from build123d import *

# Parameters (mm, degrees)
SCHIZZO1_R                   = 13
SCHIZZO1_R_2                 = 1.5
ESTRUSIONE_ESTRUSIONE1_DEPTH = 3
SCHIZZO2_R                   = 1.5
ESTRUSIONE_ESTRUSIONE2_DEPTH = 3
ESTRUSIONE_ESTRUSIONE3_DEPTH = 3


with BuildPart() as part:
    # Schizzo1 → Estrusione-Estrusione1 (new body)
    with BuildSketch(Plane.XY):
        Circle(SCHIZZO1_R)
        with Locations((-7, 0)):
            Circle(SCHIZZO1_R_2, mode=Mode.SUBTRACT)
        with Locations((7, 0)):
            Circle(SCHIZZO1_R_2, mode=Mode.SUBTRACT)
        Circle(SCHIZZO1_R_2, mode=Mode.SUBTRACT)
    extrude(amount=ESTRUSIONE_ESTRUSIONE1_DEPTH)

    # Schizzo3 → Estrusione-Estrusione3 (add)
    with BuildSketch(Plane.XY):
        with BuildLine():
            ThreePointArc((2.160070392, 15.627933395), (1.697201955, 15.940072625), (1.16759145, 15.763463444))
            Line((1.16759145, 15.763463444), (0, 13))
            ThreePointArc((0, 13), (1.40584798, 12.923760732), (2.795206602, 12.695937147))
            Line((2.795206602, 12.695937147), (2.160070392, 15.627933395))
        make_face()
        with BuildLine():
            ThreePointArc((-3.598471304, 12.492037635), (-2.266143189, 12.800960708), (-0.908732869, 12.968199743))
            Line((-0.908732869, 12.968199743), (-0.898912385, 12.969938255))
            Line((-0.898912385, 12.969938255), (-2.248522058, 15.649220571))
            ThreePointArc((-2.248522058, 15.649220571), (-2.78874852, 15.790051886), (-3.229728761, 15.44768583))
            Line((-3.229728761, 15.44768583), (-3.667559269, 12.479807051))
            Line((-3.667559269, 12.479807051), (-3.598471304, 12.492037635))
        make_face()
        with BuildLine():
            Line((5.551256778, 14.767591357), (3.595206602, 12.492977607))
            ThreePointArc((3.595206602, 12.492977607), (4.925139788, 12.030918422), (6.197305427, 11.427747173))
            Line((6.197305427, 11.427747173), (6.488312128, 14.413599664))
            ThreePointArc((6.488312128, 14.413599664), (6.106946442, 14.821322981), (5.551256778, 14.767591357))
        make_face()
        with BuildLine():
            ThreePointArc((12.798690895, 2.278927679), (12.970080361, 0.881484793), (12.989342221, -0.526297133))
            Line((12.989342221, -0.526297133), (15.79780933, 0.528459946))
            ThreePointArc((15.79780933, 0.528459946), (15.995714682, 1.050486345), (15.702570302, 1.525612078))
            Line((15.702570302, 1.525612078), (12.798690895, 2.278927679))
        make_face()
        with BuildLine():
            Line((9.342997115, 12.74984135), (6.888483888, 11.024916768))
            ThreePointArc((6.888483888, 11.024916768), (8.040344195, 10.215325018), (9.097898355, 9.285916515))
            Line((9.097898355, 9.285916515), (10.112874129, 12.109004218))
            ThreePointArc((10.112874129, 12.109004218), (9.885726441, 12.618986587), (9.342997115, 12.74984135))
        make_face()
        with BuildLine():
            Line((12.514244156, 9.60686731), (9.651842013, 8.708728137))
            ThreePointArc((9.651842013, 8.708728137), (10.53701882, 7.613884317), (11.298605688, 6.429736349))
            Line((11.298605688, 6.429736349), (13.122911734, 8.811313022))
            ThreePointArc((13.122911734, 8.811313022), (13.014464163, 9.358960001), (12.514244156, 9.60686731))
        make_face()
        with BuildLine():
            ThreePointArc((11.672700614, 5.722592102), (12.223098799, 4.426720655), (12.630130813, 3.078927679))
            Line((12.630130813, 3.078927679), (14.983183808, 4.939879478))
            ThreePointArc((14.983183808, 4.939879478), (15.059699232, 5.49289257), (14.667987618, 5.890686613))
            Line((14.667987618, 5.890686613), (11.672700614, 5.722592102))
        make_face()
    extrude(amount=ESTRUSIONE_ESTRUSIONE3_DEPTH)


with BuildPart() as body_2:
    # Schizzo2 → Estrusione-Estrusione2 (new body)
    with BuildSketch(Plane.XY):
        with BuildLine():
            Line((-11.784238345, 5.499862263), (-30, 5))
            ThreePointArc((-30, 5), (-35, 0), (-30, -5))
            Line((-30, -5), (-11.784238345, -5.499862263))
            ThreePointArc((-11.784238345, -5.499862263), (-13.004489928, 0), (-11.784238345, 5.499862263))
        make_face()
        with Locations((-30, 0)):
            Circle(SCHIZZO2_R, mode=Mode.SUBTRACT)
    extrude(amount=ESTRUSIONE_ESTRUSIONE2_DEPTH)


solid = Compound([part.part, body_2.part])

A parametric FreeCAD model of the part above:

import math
import FreeCAD as App
import Part
import Sketcher

doc = App.newDocument("Part")
body = doc.addObject("PartDesign::Body", "Body")

sketch1 = doc.addObject("Sketcher::SketchObject", "Sketch")
body.addObject(sketch1)
sketch1.AttachmentSupport = (doc.XY_Plane, [""])
sketch1.MapMode = "FlatFace"
sketch1.addGeometry(Part.Circle(App.Vector(0, 0, 0), App.Vector(0, 0, 1), 13), False)
sketch1.addGeometry(Part.Circle(App.Vector(-7, 0, 0), App.Vector(0, 0, 1), 1.5), False)
sketch1.addGeometry(Part.Circle(App.Vector(0, 0, 0), App.Vector(0, 0, 1), 1.5), False)
sketch1.addGeometry(Part.Circle(App.Vector(7, 0, 0), App.Vector(0, 0, 1), 1.5), False)
sketch1.addConstraint(Sketcher.Constraint("Coincident", 0, 3, -1, 1))
sketch1.addConstraint(Sketcher.Constraint("Coincident", 2, 3, -1, 1))
sketch1.addConstraint(Sketcher.Constraint("Equal", 1, 2))
sketch1.addConstraint(Sketcher.Constraint("Equal", 2, 3))
sketch1.addConstraint(Sketcher.Constraint("Symmetric", 1, 3, 3, 3, -1, 1))
sketch1.addConstraint(Sketcher.Constraint("PointOnObject", 1, 3, -1))
sketch1.addConstraint(Sketcher.Constraint("Diameter", 0, 26.0))
sketch1.addConstraint(Sketcher.Constraint("Diameter", 1, 3.0))
sketch1.addConstraint(Sketcher.Constraint("DistanceX", 1, 3, -1, 1, 7.0))
pad1 = doc.addObject("PartDesign::Pad", "Pad")
body.addObject(pad1)
pad1.Profile = sketch1
pad1.Length = 3

sketch2 = doc.addObject("Sketcher::SketchObject", "Sketch001")
body.addObject(sketch2)
sketch2.AttachmentSupport = (doc.XY_Plane, [""])
sketch2.MapMode = "FlatFace"
sketch2.addGeometry(Part.ArcOfCircle(Part.Circle(App.Vector(1.612, 15.314, 0), App.Vector(0, 0, 1), 0.632), math.radians(30), math.radians(135)), False)
sketch2.addGeometry(Part.LineSegment(App.Vector(1.168, 15.763, 0), App.Vector(0, 13, 0)), False)
sketch2.addGeometry(Part.ArcOfCircle(Part.Circle(App.Vector(0, 0, 0), App.Vector(0, 0, 1), 13), math.radians(77.58), math.radians(90)), False)
sketch2.addGeometry(Part.LineSegment(App.Vector(2.795, 12.696, 0), App.Vector(2.16, 15.628, 0)), False)
sketch2.addGeometry(Part.ArcOfCircle(Part.Circle(App.Vector(0, 0, 0), App.Vector(0, 0, 1), 13), math.radians(94.01), math.radians(106.07)), False)
sketch2.addGeometry(Part.LineSegment(App.Vector(-0.909, 12.968, 0), App.Vector(-0.899, 12.97, 0)), False)
sketch2.addGeometry(Part.LineSegment(App.Vector(-0.899, 12.97, 0), App.Vector(-2.249, 15.649, 0)), False)
sketch2.addGeometry(Part.ArcOfCircle(Part.Circle(App.Vector(-2.662, 15.171, 0), App.Vector(0, 0, 1), 0.632), math.radians(49), math.radians(154)), False)
sketch2.addGeometry(Part.LineSegment(App.Vector(-3.23, 15.448, 0), App.Vector(-3.668, 12.48, 0)), False)
sketch2.addGeometry(Part.LineSegment(App.Vector(-3.668, 12.48, 0), App.Vector(-3.598, 12.492, 0)), False)
sketch2.addGeometry(Part.LineSegment(App.Vector(5.551, 14.768, 0), App.Vector(3.595, 12.493, 0)), False)
sketch2.addGeometry(Part.ArcOfCircle(Part.Circle(App.Vector(0, 0, 0), App.Vector(0, 0, 1), 13), math.radians(61.53), math.radians(73.95)), False)
sketch2.addGeometry(Part.LineSegment(App.Vector(6.197, 11.428, 0), App.Vector(6.488, 14.414, 0)), False)
sketch2.addGeometry(Part.ArcOfCircle(Part.Circle(App.Vector(5.884, 14.23, 0), App.Vector(0, 0, 1), 0.632), math.radians(17), math.radians(122)), False)
sketch2.addGeometry(Part.ArcOfCircle(Part.Circle(App.Vector(0, 0, 0), App.Vector(0, 0, 1), 13), math.radians(-2.32), math.radians(10.1)), False)
sketch2.addGeometry(Part.LineSegment(App.Vector(12.989, -0.526, 0), App.Vector(15.798, 0.528, 0)), False)
sketch2.addGeometry(Part.ArcOfCircle(Part.Circle(App.Vector(15.367, 0.99, 0), App.Vector(0, 0, 1), 0.632), math.radians(-47), math.radians(58)), False)
sketch2.addGeometry(Part.LineSegment(App.Vector(15.703, 1.526, 0), App.Vector(12.799, 2.279, 0)), False)
sketch2.addGeometry(Part.LineSegment(App.Vector(9.343, 12.75, 0), App.Vector(6.888, 11.025, 0)), False)
sketch2.addGeometry(Part.ArcOfCircle(Part.Circle(App.Vector(0, 0, 0), App.Vector(0, 0, 1), 13), math.radians(45.59), math.radians(58)), False)
sketch2.addGeometry(Part.LineSegment(App.Vector(9.098, 9.286, 0), App.Vector(10.113, 12.109, 0)), False)
sketch2.addGeometry(Part.ArcOfCircle(Part.Circle(App.Vector(9.482, 12.133, 0), App.Vector(0, 0, 1), 0.632), math.radians(-2), math.radians(103)), False)
sketch2.addGeometry(Part.LineSegment(App.Vector(12.514, 9.607, 0), App.Vector(9.652, 8.709, 0)), False)
sketch2.addGeometry(Part.ArcOfCircle(Part.Circle(App.Vector(0, 0, 0), App.Vector(0, 0, 1), 13), math.radians(29.64), math.radians(42.06)), False)
sketch2.addGeometry(Part.LineSegment(App.Vector(11.299, 6.43, 0), App.Vector(13.123, 8.811, 0)), False)
sketch2.addGeometry(Part.ArcOfCircle(Part.Circle(App.Vector(12.513, 8.975, 0), App.Vector(0, 0, 1), 0.632), math.radians(-15), math.radians(90)), False)
sketch2.addGeometry(Part.ArcOfCircle(Part.Circle(App.Vector(0, 0, 0), App.Vector(0, 0, 1), 13), math.radians(13.7), math.radians(26.12)), False)
sketch2.addGeometry(Part.LineSegment(App.Vector(12.63, 3.079, 0), App.Vector(14.983, 4.94, 0)), False)
sketch2.addGeometry(Part.ArcOfCircle(Part.Circle(App.Vector(14.46, 5.294, 0), App.Vector(0, 0, 1), 0.632), math.radians(-34), math.radians(71)), False)
sketch2.addGeometry(Part.LineSegment(App.Vector(14.668, 5.891, 0), App.Vector(11.673, 5.723, 0)), False)
sketch2.addConstraint(Sketcher.Constraint("Coincident", 0, 2, 1, 1))
sketch2.addConstraint(Sketcher.Constraint("Coincident", 1, 2, 2, 2))
sketch2.addConstraint(Sketcher.Constraint("Coincident", 2, 1, 3, 1))
sketch2.addConstraint(Sketcher.Constraint("Coincident", 3, 2, 0, 1))
sketch2.addConstraint(Sketcher.Constraint("Coincident", 4, 1, 5, 1))
sketch2.addConstraint(Sketcher.Constraint("Coincident", 5, 2, 6, 1))
sketch2.addConstraint(Sketcher.Constraint("Coincident", 6, 2, 7, 1))
sketch2.addConstraint(Sketcher.Constraint("Coincident", 7, 2, 8, 1))
sketch2.addConstraint(Sketcher.Constraint("Coincident", 8, 2, 9, 1))
sketch2.addConstraint(Sketcher.Constraint("Coincident", 9, 2, 4, 2))
sketch2.addConstraint(Sketcher.Constraint("Coincident", 10, 2, 11, 2))
sketch2.addConstraint(Sketcher.Constraint("Coincident", 11, 1, 12, 1))
sketch2.addConstraint(Sketcher.Constraint("Coincident", 12, 2, 13, 1))
sketch2.addConstraint(Sketcher.Constraint("Coincident", 13, 2, 10, 1))
sketch2.addConstraint(Sketcher.Constraint("Coincident", 14, 1, 15, 1))
sketch2.addConstraint(Sketcher.Constraint("Coincident", 15, 2, 16, 1))
sketch2.addConstraint(Sketcher.Constraint("Coincident", 16, 2, 17, 1))
sketch2.addConstraint(Sketcher.Constraint("Coincident", 17, 2, 14, 2))
sketch2.addConstraint(Sketcher.Constraint("Coincident", 18, 2, 19, 2))
sketch2.addConstraint(Sketcher.Constraint("Coincident", 19, 1, 20, 1))
sketch2.addConstraint(Sketcher.Constraint("Coincident", 20, 2, 21, 1))
sketch2.addConstraint(Sketcher.Constraint("Coincident", 21, 2, 18, 1))
sketch2.addConstraint(Sketcher.Constraint("Coincident", 22, 2, 23, 2))
sketch2.addConstraint(Sketcher.Constraint("Coincident", 23, 1, 24, 1))
sketch2.addConstraint(Sketcher.Constraint("Coincident", 24, 2, 25, 1))
sketch2.addConstraint(Sketcher.Constraint("Coincident", 25, 2, 22, 1))
sketch2.addConstraint(Sketcher.Constraint("Coincident", 26, 1, 27, 1))
sketch2.addConstraint(Sketcher.Constraint("Coincident", 27, 2, 28, 1))
sketch2.addConstraint(Sketcher.Constraint("Coincident", 28, 2, 29, 1))
sketch2.addConstraint(Sketcher.Constraint("Coincident", 29, 2, 26, 2))
sketch2.addConstraint(Sketcher.Constraint("Coincident", 2, 3, -1, 1))
sketch2.addConstraint(Sketcher.Constraint("Coincident", 4, 3, -1, 1))
sketch2.addConstraint(Sketcher.Constraint("Coincident", 11, 3, -1, 1))
sketch2.addConstraint(Sketcher.Constraint("Coincident", 14, 3, -1, 1))
sketch2.addConstraint(Sketcher.Constraint("Coincident", 19, 3, -1, 1))
sketch2.addConstraint(Sketcher.Constraint("Coincident", 23, 3, -1, 1))
sketch2.addConstraint(Sketcher.Constraint("Coincident", 26, 3, -1, 1))
sketch2.addConstraint(Sketcher.Constraint("Equal", 2, 4))
sketch2.addConstraint(Sketcher.Constraint("Equal", 0, 7))
sketch2.addConstraint(Sketcher.Constraint("Equal", 4, 11))
sketch2.addConstraint(Sketcher.Constraint("Equal", 7, 13))
sketch2.addConstraint(Sketcher.Constraint("Equal", 11, 14))
sketch2.addConstraint(Sketcher.Constraint("Equal", 13, 16))
sketch2.addConstraint(Sketcher.Constraint("Equal", 14, 19))
sketch2.addConstraint(Sketcher.Constraint("Equal", 16, 21))
sketch2.addConstraint(Sketcher.Constraint("Equal", 19, 23))
sketch2.addConstraint(Sketcher.Constraint("Equal", 21, 25))
sketch2.addConstraint(Sketcher.Constraint("Equal", 23, 26))
sketch2.addConstraint(Sketcher.Constraint("Equal", 25, 28))
sketch2.addConstraint(Sketcher.Constraint("PointOnObject", 1, 2, -2))
sketch2.addConstraint(Sketcher.Constraint("Parallel", 5, 9))
sketch2.addConstraint(Sketcher.Constraint("Equal", 1, 3))
sketch2.addConstraint(Sketcher.Constraint("Equal", 3, 6))
sketch2.addConstraint(Sketcher.Constraint("Equal", 6, 8))
sketch2.addConstraint(Sketcher.Constraint("Equal", 8, 10))
sketch2.addConstraint(Sketcher.Constraint("Equal", 10, 12))
sketch2.addConstraint(Sketcher.Constraint("Equal", 12, 15))
sketch2.addConstraint(Sketcher.Constraint("Equal", 15, 17))
sketch2.addConstraint(Sketcher.Constraint("Equal", 17, 18))
sketch2.addConstraint(Sketcher.Constraint("Equal", 18, 20))
sketch2.addConstraint(Sketcher.Constraint("Equal", 20, 22))
sketch2.addConstraint(Sketcher.Constraint("Equal", 22, 24))
sketch2.addConstraint(Sketcher.Constraint("Equal", 24, 27))
sketch2.addConstraint(Sketcher.Constraint("Equal", 27, 29))
sketch2.addConstraint(Sketcher.Constraint("Radius", 2, 13.0))
sketch2.addConstraint(Sketcher.Constraint("Distance", 1, 3.0))
sketch2.addConstraint(Sketcher.Constraint("DistanceX", 2, 1, 10, 2, 0.8))
sketch2.addConstraint(Sketcher.Constraint("DistanceY", 17, 2, 26, 1, 0.8))
sketch2.addConstraint(Sketcher.Constraint("Radius", 0, 0.631843))
sketch2.addConstraint(Sketcher.Constraint("DistanceY", 19, 1, 18, 2, 1.739))
sketch2.addConstraint(Sketcher.Constraint("DistanceX", -1, 1, 21, 3, 9.481501))
sketch2.addConstraint(Sketcher.Constraint("DistanceY", -1, 1, 4, 1, 12.9682))
sketch2.addConstraint(Sketcher.Constraint("DistanceY", -1, 1, 12, 2, 14.4136))
sketch2.addConstraint(Sketcher.Constraint("DistanceX", -1, 1, 19, 1, 9.097898))
sketch2.addConstraint(Sketcher.Constraint("DistanceX", -1, 1, 29, 2, 11.672701))
sketch2.addConstraint(Sketcher.Constraint("DistanceY", 5, 2, 0, 3, 2.344102))
sketch2.addConstraint(Sketcher.Constraint("DistanceY", 9, 2, 5, 2, 0.477901))
sketch2.addConstraint(Sketcher.Constraint("DistanceX", 10, 2, 11, 1, 2.602099))
sketch2.addConstraint(Sketcher.Constraint("DistanceX", 13, 2, 13, 3, 0.3324))
sketch2.addConstraint(Sketcher.Constraint("DistanceY", 16, 3, 16, 2, 0.5352))
sketch2.addConstraint(Sketcher.Constraint("DistanceY", 22, 2, 25, 3, 0.266299))
sketch2.addConstraint(Sketcher.Constraint("DistanceY", -1, 1, 0, 3, 15.31404))
sketch2.addConstraint(Sketcher.Constraint("DistanceY", -1, 1, 7, 3, 15.17113))
sketch2.addConstraint(Sketcher.Constraint("DistanceY", -1, 1, 13, 3, 14.23025))
sketch2.addConstraint(Sketcher.Constraint("DistanceY", -1, 1, 16, 3, 0.990412))
sketch2.addConstraint(Sketcher.Constraint("DistanceX", -1, 1, 0, 2, 1.167591))
sketch2.addConstraint(Sketcher.Constraint("DistanceY", -1, 1, 6, 2, 15.649221))
sketch2.addConstraint(Sketcher.Constraint("DistanceX", 7, 2, -1, 1, 3.229729))
sketch2.addConstraint(Sketcher.Constraint("DistanceX", 8, 2, -1, 1, 3.667559))
sketch2.addConstraint(Sketcher.Constraint("DistanceX", -1, 1, 15, 2, 15.797809))
sketch2.addConstraint(Sketcher.Constraint("DistanceY", -1, 1, 15, 2, 0.52846))
sketch2.addConstraint(Sketcher.Constraint("DistanceY", -1, 1, 21, 2, 12.749841))
sketch2.addConstraint(Sketcher.Constraint("DistanceY", -1, 1, 22, 2, 8.708728))
sketch2.addConstraint(Sketcher.Constraint("DistanceX", -1, 1, 24, 2, 13.122912))
sketch2.addConstraint(Sketcher.Constraint("DistanceY", -1, 1, 27, 2, 4.939879))
sketch2.addConstraint(Sketcher.Constraint("DistanceX", 13, 3, 25, 3, 6.62899))
sketch2.addConstraint(Sketcher.Constraint("DistanceX", 21, 3, 28, 3, 4.978451))
pad2 = doc.addObject("PartDesign::Pad", "Pad001")
body.addObject(pad2)
pad2.Profile = sketch2
pad2.Length = 3
body2 = doc.addObject("PartDesign::Body", "Body001")

sketch3 = doc.addObject("Sketcher::SketchObject", "Sketch002")
body2.addObject(sketch3)
sketch3.AttachmentSupport = (doc.getObject("XY_Plane001"), [""])
sketch3.MapMode = "FlatFace"
sketch3.addGeometry(Part.LineSegment(App.Vector(-11.8, 5.5, 0), App.Vector(-30, 5, 0)), False)
sketch3.addGeometry(Part.ArcOfCircle(Part.Circle(App.Vector(-30, 0, 0), App.Vector(0, 0, 1), 5), math.radians(90), math.radians(270)), False)
sketch3.addGeometry(Part.LineSegment(App.Vector(-30, -5, 0), App.Vector(-11.8, -5.5, 0)), False)
sketch3.addGeometry(Part.ArcOfCircle(Part.Circle(App.Vector(0, 0, 0), App.Vector(0, 0, 1), 13), math.radians(155), math.radians(205)), False)
sketch3.addGeometry(Part.Circle(App.Vector(-30, 0, 0), App.Vector(0, 0, 1), 1.5), False)
sketch3.addConstraint(Sketcher.Constraint("Coincident", 0, 2, 1, 1))
sketch3.addConstraint(Sketcher.Constraint("Coincident", 1, 2, 2, 1))
sketch3.addConstraint(Sketcher.Constraint("Coincident", 2, 2, 3, 2))
sketch3.addConstraint(Sketcher.Constraint("Coincident", 3, 1, 0, 1))
sketch3.addConstraint(Sketcher.Constraint("Coincident", 3, 3, -1, 1))
sketch3.addConstraint(Sketcher.Constraint("Coincident", 4, 3, 1, 3))
sketch3.addConstraint(Sketcher.Constraint("Symmetric", 0, 2, 1, 2, -1))
sketch3.addConstraint(Sketcher.Constraint("Vertical", 4, 3, 0, 2))
sketch3.addConstraint(Sketcher.Constraint("Vertical", 2, 2, 3, 1))
sketch3.addConstraint(Sketcher.Constraint("Diameter", 4, 3.0))
sketch3.addConstraint(Sketcher.Constraint("Radius", 1, 5.0))
sketch3.addConstraint(Sketcher.Constraint("DistanceX", 1, 3, -1, 1, 30.0))
sketch3.addConstraint(Sketcher.Constraint("Radius", 3, 13.00449))
sketch3.addConstraint(Sketcher.Constraint("Distance", 0, 18.222619))
pad3 = doc.addObject("PartDesign::Pad", "Pad002")
body2.addObject(pad3)
pad3.Profile = sketch3
pad3.Length = 3

doc.recompute()
